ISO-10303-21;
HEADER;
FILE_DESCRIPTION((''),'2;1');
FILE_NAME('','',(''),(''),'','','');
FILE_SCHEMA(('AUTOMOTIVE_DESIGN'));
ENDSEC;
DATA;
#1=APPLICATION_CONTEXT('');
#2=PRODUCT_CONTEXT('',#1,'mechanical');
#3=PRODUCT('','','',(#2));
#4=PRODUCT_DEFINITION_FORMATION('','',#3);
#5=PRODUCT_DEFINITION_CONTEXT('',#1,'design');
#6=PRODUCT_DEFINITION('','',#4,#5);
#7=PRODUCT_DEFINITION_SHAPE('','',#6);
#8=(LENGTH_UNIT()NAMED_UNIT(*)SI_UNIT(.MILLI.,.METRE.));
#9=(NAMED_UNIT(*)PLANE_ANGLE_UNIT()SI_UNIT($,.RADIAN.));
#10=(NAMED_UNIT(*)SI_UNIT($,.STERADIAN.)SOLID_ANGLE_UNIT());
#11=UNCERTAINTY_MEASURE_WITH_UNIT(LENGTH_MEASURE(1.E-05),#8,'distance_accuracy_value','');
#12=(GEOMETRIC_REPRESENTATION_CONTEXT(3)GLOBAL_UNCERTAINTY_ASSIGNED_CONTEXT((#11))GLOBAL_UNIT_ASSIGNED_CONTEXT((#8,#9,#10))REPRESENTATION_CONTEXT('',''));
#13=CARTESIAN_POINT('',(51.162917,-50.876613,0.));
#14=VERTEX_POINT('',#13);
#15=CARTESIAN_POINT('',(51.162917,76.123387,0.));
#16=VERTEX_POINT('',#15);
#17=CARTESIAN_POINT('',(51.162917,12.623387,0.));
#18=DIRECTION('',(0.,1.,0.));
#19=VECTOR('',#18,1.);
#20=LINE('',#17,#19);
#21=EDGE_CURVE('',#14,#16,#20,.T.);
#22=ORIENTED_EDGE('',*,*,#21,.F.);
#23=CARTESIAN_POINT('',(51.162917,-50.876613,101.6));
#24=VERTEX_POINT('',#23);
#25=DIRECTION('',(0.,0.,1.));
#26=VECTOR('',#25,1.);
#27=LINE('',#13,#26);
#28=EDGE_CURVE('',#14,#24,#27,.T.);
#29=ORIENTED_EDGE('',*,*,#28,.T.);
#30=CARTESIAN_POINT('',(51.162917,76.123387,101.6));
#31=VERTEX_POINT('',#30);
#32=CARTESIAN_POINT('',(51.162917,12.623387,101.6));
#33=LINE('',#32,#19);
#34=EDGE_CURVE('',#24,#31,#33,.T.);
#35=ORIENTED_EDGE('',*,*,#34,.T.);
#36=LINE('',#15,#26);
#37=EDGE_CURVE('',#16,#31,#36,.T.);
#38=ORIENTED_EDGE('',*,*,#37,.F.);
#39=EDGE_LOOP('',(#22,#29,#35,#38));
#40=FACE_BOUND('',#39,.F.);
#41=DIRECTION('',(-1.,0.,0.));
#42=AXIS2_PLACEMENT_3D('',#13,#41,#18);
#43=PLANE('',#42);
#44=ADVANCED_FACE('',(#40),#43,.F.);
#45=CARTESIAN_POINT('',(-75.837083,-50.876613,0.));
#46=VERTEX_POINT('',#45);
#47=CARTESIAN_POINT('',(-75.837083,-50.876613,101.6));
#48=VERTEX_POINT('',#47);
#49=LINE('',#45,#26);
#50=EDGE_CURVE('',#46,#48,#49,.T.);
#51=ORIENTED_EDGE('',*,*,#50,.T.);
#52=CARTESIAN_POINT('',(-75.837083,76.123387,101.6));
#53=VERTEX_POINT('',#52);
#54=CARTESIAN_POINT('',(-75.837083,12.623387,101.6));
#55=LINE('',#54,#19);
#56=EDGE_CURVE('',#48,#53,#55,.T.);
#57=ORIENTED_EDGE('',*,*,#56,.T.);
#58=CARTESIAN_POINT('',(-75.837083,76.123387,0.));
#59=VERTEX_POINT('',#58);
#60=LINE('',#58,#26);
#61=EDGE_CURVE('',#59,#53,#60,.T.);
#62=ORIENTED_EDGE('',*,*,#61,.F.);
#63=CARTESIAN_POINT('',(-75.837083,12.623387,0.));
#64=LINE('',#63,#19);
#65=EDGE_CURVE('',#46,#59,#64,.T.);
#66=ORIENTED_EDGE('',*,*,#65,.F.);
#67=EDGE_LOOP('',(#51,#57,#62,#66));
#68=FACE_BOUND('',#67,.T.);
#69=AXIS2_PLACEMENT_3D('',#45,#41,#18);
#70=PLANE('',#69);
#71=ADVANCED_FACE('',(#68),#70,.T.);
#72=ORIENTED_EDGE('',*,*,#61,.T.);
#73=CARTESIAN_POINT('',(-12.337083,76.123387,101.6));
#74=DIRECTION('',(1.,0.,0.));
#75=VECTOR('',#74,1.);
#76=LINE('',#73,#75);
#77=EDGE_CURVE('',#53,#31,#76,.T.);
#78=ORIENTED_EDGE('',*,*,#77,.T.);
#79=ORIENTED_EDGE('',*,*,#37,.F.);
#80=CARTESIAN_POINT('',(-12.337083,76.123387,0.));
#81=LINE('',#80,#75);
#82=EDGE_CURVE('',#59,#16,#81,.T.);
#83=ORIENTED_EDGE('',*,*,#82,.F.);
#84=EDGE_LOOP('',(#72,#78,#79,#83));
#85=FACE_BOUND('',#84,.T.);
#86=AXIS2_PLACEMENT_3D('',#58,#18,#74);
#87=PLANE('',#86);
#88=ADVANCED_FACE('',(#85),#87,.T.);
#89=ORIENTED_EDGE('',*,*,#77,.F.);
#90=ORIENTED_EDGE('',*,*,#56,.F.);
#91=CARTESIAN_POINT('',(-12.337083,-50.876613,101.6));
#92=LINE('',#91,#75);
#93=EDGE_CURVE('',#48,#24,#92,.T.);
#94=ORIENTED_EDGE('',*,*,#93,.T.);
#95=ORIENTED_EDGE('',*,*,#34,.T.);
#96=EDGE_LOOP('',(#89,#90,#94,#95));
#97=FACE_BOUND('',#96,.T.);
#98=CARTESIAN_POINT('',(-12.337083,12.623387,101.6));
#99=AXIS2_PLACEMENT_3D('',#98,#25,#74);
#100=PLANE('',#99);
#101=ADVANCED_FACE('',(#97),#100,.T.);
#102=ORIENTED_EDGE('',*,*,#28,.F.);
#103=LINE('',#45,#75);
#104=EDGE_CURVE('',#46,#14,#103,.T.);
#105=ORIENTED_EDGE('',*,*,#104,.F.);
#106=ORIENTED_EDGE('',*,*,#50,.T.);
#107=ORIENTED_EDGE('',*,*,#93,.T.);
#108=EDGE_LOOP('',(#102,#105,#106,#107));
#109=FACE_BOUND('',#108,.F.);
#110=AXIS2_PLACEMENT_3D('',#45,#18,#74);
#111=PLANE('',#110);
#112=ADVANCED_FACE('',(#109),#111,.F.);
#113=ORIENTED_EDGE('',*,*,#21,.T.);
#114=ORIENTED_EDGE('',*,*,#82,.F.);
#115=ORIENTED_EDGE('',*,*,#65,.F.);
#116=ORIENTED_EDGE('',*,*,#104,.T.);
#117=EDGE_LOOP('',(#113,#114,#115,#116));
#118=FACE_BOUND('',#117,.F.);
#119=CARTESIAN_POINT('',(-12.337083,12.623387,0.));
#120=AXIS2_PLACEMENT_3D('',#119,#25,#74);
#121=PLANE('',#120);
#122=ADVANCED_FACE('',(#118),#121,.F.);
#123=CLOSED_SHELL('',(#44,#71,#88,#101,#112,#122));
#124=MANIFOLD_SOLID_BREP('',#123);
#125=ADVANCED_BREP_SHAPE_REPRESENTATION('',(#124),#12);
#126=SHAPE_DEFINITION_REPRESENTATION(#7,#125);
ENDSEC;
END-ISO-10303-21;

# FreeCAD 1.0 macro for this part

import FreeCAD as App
import Part
import Sketcher

V = App.Vector
Q = App.Units.Quantity

doc = App.newDocument("Part")
body = doc.addObject("PartDesign::Body", "Body")

sketch1 = doc.addObject("Sketcher::SketchObject", "Sketch")
body.addObject(sketch1)
sketch1.AttachmentSupport = (doc.XY_Plane, [""])
sketch1.MapMode = "FlatFace"
sketch1.addGeometry(Part.LineSegment(V(-76, 76, 0), V(-76, -51, 0)), False)
sketch1.addGeometry(Part.LineSegment(V(-76, -51, 0), V(51, -51, 0)), False)
sketch1.addGeometry(Part.LineSegment(V(51, -51, 0), V(51, 76, 0)), False)
sketch1.addGeometry(Part.LineSegment(V(51, 76, 0), V(-76, 76, 0)), False)
sketch1.addConstraint(Sketcher.Constraint("Coincident", 0, 2, 1, 1))
sketch1.addConstraint(Sketcher.Constraint("Coincident", 1, 2, 2, 1))
sketch1.addConstraint(Sketcher.Constraint("Coincident", 2, 2, 3, 1))
sketch1.addConstraint(Sketcher.Constraint("Coincident", 3, 2, 0, 1))
sketch1.addConstraint(Sketcher.Constraint("Vertical", 0))
sketch1.addConstraint(Sketcher.Constraint("Horizontal", 1))
sketch1.addConstraint(Sketcher.Constraint("Vertical", 2))
sketch1.addConstraint(Sketcher.Constraint("Horizontal", 3))
sketch1.addConstraint(Sketcher.Constraint("Equal", 3, 0))
sketch1.addConstraint(Sketcher.Constraint("DistanceX", 1, 1, 1, 2, Q("5 in")))
sketch1.addConstraint(Sketcher.Constraint("DistanceX", 0, 2, -1, 1, Q("75.837083 mm")))
sketch1.addConstraint(Sketcher.Constraint("DistanceY", 0, 2, -1, 1, Q("50.876613 mm")))
pad1 = doc.addObject("PartDesign::Pad", "Pad")
body.addObject(pad1)
pad1.Profile = sketch1
pad1.Length = Q("4 in")

sketch2 = doc.addObject("Sketcher::SketchObject", "Sketch001")
body.addObject(sketch2)
sketch2.AttachmentSupport = (doc.XY_Plane, [""])
sketch2.MapMode = "FlatFace"
sketch2.addGeometry(Part.LineSegment(V(50.9, -50.88, 0), V(40.28, -50.88, 0)), False)
sketch2.addGeometry(Part.LineSegment(V(40.28, -50.88, 0), V(50.9, -50.93, 0)), False)
sketch2.addGeometry(Part.LineSegment(V(50.9, -50.93, 0), V(50.9, -50.88, 0)), False)
sketch2.addConstraint(Sketcher.Constraint("Coincident", 0, 2, 1, 1))
sketch2.addConstraint(Sketcher.Constraint("Coincident", 1, 2, 2, 1))
sketch2.addConstraint(Sketcher.Constraint("Coincident", 2, 2, 0, 1))
sketch2.addConstraint(Sketcher.Constraint("Horizontal", 0))
sketch2.addConstraint(Sketcher.Constraint("Vertical", 2))
sketch2.addConstraint(Sketcher.Constraint("DistanceY", 2, 1, 2, 2, Q("0.052449 mm")))
sketch2.addConstraint(Sketcher.Constraint("DistanceX", -1, 1, 1, 2, Q("50.900102 mm")))
sketch2.addConstraint(Sketcher.Constraint("DistanceX", 0, 2, 0, 1, Q("10.620946 mm")))
sketch2.addConstraint(Sketcher.Constraint("DistanceY", 0, 2, -1, 1, Q("50.876613 mm")))
pocket1 = doc.addObject("PartDesign::Pocket", "Pocket")
body.addObject(pocket1)
pocket1.Profile = sketch2
pocket1.Length = Q("1 in")

doc.recompute()
